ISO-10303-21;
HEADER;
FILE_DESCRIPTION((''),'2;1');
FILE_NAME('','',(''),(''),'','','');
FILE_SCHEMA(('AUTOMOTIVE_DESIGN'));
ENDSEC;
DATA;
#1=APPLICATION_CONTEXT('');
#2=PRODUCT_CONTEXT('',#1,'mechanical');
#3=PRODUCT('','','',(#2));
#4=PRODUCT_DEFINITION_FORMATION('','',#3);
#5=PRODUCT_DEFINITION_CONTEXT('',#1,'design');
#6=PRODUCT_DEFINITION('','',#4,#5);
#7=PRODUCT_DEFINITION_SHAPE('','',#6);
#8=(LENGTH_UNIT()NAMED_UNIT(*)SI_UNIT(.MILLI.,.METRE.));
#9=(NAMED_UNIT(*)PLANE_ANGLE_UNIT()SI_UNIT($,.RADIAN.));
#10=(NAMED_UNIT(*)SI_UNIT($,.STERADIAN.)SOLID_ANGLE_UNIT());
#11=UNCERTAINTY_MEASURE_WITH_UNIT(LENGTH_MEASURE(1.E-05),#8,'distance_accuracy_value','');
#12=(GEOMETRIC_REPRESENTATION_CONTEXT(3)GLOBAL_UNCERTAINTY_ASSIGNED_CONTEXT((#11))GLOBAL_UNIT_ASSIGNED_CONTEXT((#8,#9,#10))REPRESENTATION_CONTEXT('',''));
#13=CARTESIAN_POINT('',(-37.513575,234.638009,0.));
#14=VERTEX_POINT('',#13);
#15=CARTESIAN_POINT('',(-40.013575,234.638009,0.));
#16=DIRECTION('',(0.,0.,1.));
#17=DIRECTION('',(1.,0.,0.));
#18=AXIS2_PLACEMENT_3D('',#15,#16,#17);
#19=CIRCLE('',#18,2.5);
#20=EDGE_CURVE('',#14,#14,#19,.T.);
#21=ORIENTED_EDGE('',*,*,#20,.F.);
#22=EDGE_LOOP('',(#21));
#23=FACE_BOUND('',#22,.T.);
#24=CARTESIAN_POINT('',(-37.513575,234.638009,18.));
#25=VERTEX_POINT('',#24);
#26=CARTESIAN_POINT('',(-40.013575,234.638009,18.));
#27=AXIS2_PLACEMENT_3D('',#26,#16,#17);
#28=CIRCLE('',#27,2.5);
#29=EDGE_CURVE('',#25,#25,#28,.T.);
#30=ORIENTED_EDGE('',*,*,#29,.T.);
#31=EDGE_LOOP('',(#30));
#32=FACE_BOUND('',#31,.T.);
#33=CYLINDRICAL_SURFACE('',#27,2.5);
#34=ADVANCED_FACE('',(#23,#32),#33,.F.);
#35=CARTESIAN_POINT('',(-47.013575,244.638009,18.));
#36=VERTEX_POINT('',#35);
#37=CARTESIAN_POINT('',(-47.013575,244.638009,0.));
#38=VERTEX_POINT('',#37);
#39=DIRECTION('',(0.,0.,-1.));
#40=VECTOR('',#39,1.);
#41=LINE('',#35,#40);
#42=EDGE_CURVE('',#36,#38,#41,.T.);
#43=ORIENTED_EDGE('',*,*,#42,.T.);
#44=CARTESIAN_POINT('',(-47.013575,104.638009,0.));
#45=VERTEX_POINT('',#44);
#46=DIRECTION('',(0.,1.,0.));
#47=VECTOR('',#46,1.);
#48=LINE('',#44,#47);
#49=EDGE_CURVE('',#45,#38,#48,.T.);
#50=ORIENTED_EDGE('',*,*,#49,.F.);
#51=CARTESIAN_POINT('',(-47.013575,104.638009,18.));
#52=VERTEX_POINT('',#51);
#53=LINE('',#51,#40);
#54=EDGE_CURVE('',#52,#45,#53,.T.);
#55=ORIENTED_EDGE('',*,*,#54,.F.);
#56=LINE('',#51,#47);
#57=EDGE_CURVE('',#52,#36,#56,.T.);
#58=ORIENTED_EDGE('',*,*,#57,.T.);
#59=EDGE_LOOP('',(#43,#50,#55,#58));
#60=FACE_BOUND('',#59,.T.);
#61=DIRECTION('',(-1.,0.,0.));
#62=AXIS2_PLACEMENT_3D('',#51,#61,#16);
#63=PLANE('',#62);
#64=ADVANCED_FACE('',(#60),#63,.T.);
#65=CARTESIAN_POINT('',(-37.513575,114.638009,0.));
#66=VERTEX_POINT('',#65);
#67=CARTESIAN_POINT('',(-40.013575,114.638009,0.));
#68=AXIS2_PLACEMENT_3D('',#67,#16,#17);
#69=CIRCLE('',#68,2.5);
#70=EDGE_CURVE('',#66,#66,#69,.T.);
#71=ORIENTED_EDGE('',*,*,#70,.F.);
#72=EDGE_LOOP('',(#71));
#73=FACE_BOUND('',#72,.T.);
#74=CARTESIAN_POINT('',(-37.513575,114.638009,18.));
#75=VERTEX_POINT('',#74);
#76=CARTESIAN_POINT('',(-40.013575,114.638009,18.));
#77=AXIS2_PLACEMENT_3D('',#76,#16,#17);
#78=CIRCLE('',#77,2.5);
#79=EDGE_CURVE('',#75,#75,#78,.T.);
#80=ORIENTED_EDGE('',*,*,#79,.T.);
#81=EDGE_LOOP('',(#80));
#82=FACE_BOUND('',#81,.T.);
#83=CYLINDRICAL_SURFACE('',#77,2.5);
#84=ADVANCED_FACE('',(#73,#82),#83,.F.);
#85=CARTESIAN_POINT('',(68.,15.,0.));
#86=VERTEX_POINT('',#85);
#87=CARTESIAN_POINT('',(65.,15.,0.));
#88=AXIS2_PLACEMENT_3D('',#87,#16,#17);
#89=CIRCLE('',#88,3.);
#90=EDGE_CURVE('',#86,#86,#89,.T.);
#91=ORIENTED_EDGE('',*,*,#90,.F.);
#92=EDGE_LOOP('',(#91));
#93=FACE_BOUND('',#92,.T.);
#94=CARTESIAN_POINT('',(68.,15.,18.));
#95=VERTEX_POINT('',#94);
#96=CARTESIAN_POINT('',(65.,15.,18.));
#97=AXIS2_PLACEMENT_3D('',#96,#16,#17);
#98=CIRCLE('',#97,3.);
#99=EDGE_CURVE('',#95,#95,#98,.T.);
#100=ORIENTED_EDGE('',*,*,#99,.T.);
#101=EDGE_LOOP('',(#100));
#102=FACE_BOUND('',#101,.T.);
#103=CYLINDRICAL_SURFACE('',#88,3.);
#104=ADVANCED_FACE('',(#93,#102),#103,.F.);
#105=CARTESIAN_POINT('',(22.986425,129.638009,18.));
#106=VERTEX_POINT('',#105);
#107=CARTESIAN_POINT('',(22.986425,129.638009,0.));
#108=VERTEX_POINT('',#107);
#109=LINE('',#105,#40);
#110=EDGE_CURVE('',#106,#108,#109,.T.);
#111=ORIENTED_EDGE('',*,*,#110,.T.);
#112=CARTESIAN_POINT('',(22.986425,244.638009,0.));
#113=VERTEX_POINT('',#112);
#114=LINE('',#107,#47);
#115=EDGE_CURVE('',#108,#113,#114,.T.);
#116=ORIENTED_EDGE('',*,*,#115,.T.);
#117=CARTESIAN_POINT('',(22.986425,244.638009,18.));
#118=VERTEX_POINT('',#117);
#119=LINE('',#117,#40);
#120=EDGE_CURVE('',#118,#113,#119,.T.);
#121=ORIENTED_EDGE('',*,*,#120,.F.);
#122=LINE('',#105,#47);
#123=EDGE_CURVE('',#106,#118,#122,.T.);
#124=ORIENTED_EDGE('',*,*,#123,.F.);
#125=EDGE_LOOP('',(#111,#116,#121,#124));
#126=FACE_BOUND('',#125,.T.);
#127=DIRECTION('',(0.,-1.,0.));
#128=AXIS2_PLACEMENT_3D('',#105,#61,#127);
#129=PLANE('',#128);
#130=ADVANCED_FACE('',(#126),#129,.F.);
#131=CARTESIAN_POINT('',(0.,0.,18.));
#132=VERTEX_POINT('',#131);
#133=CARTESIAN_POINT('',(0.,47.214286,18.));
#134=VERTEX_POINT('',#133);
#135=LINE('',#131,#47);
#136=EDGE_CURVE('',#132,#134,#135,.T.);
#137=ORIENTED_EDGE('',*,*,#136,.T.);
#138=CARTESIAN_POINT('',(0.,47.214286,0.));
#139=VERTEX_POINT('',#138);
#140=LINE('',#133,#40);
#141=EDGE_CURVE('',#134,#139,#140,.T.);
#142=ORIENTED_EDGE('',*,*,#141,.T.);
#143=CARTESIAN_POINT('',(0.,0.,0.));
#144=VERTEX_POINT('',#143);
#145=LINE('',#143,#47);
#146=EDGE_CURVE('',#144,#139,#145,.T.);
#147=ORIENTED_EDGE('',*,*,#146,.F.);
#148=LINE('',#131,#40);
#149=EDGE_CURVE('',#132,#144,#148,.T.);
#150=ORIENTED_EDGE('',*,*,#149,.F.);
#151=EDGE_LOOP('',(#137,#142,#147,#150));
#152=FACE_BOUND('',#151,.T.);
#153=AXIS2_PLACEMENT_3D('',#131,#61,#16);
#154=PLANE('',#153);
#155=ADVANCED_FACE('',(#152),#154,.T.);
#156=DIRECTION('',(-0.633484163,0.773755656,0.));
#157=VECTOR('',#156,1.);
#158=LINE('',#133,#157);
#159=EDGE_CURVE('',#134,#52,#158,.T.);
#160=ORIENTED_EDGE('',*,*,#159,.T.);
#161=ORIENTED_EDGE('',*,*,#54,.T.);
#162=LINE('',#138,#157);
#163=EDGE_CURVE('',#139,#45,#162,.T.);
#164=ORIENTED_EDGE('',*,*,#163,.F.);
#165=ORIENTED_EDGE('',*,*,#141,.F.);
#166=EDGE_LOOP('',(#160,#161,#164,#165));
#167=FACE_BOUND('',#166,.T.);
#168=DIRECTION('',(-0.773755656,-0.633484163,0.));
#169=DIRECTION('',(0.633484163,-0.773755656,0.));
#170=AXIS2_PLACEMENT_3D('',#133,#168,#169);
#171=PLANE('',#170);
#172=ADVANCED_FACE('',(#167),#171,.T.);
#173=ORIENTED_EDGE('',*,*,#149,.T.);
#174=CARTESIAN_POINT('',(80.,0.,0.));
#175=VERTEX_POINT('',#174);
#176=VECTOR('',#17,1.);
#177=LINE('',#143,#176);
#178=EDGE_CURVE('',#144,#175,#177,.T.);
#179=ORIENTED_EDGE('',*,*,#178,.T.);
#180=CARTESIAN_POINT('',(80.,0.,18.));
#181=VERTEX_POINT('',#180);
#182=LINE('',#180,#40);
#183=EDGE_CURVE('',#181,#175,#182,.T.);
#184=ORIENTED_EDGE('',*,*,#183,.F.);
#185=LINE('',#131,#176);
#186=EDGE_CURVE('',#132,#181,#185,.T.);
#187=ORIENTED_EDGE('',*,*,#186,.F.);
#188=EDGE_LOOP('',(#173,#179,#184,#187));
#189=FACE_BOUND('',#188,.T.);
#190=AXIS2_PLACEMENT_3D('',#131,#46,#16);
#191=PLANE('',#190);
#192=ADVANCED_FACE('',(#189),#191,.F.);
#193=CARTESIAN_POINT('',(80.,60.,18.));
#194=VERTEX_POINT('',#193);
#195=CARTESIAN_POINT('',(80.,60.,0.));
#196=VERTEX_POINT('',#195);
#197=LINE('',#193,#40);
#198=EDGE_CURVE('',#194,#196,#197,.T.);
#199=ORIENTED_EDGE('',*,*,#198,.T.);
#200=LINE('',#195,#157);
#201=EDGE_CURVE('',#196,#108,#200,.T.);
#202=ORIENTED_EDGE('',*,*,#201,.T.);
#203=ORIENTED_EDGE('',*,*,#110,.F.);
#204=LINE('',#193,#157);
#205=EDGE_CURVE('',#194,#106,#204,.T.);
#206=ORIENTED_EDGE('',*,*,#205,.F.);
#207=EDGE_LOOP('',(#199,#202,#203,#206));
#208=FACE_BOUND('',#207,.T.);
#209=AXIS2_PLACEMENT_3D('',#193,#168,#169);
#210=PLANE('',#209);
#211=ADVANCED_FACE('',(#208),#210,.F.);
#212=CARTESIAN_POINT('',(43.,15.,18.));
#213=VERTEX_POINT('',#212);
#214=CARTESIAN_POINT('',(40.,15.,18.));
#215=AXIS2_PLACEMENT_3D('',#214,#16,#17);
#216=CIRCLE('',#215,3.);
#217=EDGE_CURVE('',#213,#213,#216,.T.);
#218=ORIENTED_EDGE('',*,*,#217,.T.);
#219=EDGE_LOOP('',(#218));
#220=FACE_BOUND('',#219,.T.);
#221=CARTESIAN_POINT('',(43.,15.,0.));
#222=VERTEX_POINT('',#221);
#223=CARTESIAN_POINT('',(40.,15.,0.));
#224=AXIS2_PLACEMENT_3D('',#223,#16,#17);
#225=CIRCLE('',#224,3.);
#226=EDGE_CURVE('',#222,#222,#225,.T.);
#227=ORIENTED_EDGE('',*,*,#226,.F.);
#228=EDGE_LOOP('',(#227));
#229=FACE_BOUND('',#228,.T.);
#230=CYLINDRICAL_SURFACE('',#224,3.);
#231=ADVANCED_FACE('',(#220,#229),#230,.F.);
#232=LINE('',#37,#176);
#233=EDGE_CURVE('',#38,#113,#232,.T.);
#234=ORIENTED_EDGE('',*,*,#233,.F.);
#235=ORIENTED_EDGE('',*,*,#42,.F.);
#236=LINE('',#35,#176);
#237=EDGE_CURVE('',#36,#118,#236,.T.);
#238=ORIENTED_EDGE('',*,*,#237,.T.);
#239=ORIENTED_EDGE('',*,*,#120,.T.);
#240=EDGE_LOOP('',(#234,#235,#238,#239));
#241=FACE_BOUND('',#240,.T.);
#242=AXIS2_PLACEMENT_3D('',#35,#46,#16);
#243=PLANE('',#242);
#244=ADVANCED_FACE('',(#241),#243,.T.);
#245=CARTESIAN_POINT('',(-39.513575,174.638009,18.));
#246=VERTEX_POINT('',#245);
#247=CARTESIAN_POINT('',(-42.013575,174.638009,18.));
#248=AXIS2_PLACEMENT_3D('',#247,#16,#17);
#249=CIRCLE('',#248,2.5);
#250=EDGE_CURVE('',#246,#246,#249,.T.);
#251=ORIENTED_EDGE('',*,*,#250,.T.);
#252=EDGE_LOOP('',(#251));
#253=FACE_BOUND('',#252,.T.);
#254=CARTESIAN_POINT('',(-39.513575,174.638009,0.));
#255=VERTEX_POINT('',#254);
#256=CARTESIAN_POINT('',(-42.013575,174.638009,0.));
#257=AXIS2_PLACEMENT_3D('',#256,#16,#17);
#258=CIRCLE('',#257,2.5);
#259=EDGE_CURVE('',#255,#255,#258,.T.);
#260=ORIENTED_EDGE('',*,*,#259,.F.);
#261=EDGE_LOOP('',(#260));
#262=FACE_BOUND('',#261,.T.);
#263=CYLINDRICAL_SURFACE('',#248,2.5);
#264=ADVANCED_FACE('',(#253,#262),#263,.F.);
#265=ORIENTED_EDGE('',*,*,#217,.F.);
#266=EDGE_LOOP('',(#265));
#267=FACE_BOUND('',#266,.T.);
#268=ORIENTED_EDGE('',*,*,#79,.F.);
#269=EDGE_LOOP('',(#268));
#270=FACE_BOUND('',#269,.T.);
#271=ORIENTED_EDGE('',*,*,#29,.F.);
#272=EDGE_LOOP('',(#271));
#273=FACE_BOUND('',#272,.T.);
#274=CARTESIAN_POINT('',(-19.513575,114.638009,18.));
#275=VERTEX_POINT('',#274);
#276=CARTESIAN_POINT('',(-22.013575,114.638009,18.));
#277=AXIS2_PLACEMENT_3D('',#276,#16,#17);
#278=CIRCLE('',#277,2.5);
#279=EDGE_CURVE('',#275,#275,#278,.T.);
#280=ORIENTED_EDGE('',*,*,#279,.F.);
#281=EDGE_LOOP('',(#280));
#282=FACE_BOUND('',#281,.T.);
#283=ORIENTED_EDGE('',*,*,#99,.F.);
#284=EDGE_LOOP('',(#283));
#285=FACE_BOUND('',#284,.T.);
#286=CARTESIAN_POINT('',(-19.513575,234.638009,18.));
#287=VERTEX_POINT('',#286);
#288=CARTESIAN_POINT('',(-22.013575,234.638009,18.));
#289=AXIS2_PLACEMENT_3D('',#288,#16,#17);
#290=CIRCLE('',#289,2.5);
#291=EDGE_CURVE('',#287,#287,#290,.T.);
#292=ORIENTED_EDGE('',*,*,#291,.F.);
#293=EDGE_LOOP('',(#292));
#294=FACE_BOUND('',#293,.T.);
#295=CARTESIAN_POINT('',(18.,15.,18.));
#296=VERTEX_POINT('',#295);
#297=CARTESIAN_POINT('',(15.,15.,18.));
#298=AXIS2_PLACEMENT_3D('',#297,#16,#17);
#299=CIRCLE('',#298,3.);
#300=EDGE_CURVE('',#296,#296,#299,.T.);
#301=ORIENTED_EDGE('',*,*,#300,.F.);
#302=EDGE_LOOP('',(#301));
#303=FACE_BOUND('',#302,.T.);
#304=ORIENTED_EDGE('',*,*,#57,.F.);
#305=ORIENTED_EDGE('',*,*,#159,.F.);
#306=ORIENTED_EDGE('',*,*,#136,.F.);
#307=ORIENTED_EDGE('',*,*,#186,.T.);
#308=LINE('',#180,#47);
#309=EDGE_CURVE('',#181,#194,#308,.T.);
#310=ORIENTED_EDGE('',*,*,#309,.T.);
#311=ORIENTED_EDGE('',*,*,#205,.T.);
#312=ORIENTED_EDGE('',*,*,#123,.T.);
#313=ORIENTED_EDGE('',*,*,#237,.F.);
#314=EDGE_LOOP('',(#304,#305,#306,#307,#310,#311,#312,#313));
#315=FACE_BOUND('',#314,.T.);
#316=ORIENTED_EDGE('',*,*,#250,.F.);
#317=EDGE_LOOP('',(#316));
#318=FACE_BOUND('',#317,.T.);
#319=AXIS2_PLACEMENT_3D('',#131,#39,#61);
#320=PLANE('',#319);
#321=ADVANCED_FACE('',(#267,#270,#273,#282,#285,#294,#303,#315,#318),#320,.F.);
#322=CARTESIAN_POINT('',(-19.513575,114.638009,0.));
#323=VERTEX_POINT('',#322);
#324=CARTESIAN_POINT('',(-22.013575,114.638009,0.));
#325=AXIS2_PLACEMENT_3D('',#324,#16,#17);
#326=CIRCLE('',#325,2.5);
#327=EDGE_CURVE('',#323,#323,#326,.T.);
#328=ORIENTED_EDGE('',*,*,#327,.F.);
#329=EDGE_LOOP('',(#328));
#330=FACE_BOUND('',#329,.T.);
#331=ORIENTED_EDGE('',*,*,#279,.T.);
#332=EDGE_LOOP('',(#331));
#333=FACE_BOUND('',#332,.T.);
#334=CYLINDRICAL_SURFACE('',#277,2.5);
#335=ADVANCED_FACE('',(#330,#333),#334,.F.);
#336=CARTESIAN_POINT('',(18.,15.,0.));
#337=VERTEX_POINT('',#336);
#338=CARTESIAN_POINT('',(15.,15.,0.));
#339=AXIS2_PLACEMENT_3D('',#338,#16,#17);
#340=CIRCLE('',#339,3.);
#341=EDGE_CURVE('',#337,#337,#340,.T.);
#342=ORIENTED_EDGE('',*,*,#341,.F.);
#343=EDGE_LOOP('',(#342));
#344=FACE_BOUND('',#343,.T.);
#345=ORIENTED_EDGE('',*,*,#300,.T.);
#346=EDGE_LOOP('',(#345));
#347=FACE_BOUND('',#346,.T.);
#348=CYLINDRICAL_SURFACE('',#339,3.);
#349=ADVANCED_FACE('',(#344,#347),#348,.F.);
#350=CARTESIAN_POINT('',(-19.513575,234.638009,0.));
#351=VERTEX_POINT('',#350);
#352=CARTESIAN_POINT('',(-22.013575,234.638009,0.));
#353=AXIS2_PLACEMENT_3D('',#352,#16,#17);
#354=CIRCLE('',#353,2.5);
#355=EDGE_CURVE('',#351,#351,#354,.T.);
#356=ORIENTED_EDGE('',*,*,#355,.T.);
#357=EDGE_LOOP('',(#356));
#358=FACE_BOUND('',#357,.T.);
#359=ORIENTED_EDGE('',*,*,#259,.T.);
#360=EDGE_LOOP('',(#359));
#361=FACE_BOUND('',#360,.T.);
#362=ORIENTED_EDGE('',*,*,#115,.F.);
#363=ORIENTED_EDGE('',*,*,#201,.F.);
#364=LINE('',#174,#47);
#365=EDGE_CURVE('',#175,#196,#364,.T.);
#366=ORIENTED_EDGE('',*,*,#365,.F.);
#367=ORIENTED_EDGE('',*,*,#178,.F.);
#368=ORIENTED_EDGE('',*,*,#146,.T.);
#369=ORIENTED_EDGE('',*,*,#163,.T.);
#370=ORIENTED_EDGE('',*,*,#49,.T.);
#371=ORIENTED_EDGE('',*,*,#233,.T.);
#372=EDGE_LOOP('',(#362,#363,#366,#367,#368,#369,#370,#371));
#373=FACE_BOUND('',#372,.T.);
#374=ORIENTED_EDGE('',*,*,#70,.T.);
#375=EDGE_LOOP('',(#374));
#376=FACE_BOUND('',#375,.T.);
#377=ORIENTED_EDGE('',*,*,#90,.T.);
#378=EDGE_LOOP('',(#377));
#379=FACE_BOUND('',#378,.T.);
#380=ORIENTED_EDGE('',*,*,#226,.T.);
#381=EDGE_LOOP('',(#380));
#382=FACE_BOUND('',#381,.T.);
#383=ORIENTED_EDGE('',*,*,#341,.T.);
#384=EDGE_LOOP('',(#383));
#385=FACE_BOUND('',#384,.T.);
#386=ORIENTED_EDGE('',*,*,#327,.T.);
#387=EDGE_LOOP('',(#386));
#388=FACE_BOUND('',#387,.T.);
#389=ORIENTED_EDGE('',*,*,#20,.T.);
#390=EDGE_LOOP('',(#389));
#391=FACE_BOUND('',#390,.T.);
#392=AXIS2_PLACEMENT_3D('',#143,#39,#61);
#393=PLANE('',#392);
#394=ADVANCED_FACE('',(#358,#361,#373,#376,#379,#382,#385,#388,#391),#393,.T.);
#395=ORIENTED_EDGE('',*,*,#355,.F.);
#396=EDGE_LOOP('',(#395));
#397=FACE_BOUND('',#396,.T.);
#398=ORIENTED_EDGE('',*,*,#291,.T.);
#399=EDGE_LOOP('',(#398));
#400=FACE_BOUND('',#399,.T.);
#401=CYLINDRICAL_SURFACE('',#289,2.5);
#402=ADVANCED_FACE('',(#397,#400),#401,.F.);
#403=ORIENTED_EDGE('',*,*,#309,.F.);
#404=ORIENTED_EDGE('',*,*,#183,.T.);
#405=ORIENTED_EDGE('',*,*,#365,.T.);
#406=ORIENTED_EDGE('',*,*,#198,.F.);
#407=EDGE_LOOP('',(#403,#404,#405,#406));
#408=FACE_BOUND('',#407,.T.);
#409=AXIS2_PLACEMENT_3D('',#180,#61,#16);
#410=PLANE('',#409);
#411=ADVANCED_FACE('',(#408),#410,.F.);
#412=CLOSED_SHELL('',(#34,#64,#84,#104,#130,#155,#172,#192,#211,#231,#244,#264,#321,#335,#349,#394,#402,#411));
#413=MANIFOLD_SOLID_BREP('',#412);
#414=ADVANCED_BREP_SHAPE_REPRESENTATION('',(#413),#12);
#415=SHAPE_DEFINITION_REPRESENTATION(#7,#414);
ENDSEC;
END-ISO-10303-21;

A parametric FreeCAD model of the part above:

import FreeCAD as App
import Part
import Sketcher
from FreeCAD import Vector
Q = App.Units.Quantity

doc = App.newDocument("Part")
body = doc.addObject("PartDesign::Body", "Body")

# Sketch on XY plane
sketch1 = body.newObject("Sketcher::SketchObject", "Sketch")
sketch1.AttachmentSupport = (doc.getObject("XY_Plane"), [""])
sketch1.MapMode = "FlatFace"
sketch1.addGeometry([
    Part.LineSegment(Vector(0, 0, 0), Vector(80, 0, 0)),  # 0
    Part.LineSegment(Vector(80, 0, 0), Vector(80, 60, 0)),  # 1
    Part.LineSegment(Vector(80, 60, 0), Vector(23, 130, 0)),  # 2
    Part.LineSegment(Vector(23, 130, 0), Vector(23, 245, 0)),  # 3
    Part.LineSegment(Vector(23, 245, 0), Vector(-47, 245, 0)),  # 4
    Part.LineSegment(Vector(-47, 245, 0), Vector(-47, 105, 0)),  # 5
    Part.LineSegment(Vector(-47, 105, 0), Vector(0, 47, 0)),  # 6
    Part.LineSegment(Vector(0, 47, 0), Vector(0, 0, 0)),  # 7
], False)
sketch1.addConstraint([
    Sketcher.Constraint("Coincident", 0, 2, 1, 1),
    Sketcher.Constraint("Coincident", 1, 2, 2, 1),
    Sketcher.Constraint("Coincident", 2, 2, 3, 1),
    Sketcher.Constraint("Coincident", 3, 2, 4, 1),
    Sketcher.Constraint("Coincident", 4, 2, 5, 1),
    Sketcher.Constraint("Coincident", 5, 2, 6, 1),
    Sketcher.Constraint("Coincident", 6, 2, 7, 1),
    Sketcher.Constraint("Coincident", 7, 2, 0, 1),
    Sketcher.Constraint("Horizontal", 0),
    Sketcher.Constraint("Vertical", 1),
    Sketcher.Constraint("Vertical", 3),
    Sketcher.Constraint("Horizontal", 4),
    Sketcher.Constraint("Vertical", 5),
    Sketcher.Constraint("Vertical", 7),
    Sketcher.Constraint("Coincident", 7, 2, -1, 1),
    Sketcher.Constraint("Parallel", 2, 6),
    Sketcher.Constraint("DistanceX", 0, 1, 0, 2, Q("80 mm")),
    Sketcher.Constraint("DistanceX", 4, 2, 4, 1, Q("70 mm")),
    Sketcher.Constraint("DistanceY", 1, 1, 1, 2, Q("60 mm")),
    Sketcher.Constraint("DistanceY", 3, 1, 3, 2, Q("115 mm")),
    Sketcher.Constraint("DistanceY", 5, 2, 5, 1, Q("140 mm")),
    Sketcher.Constraint("Distance", 2, Q("90 mm")),
    Sketcher.Constraint("DistanceY", 7, 2, 7, 1, Q("47.214286 mm")),
])
pad1 = body.newObject("PartDesign::Pad", "Pad")
pad1.Profile = sketch1
pad1.Length = 18

# Sketch on XY plane
sketch2 = body.newObject("Sketcher::SketchObject", "Sketch001")
sketch2.AttachmentSupport = (doc.getObject("XY_Plane"), [""])
sketch2.MapMode = "FlatFace"
sketch2.AttachmentOffset = App.Placement(Vector(0, 0, 18), App.Rotation())
sketch2.addGeometry([
    Part.Circle(Vector(-40, 114.6, 0), Vector(0, 0, 1), 2.5),
    Part.Circle(Vector(-22, 114.6, 0), Vector(0, 0, 1), 2.5),
    Part.Circle(Vector(-40, 234.6, 0), Vector(0, 0, 1), 2.5),
    Part.Circle(Vector(-22, 234.6, 0), Vector(0, 0, 1), 2.5),
], False)
sketch2.addConstraint([
    Sketcher.Constraint("Equal", 0, 1),
    Sketcher.Constraint("Equal", 1, 2),
    Sketcher.Constraint("Equal", 2, 3),
    Sketcher.Constraint("Horizontal", 0, 3, 1, 3),
    Sketcher.Constraint("Horizontal", 2, 3, 3, 3),
    Sketcher.Constraint("Vertical", 0, 3, 2, 3),
    Sketcher.Constraint("Vertical", 1, 3, 3, 3),
    Sketcher.Constraint("Diameter", 0, Q("5 mm")),
    Sketcher.Constraint("DistanceX", 0, 3, 1, 3, Q("18 mm")),
    Sketcher.Constraint("DistanceY", 0, 3, 2, 3, Q("120 mm")),
    Sketcher.Constraint("DistanceY", -1, 1, 0, 3, Q("114.638009 mm")),
    Sketcher.Constraint("DistanceX", 0, 3, -1, 1, Q("40.013575 mm")),
])
doc.recompute()
hole = body.newObject("PartDesign::Hole", "Hole")
hole.Profile = sketch2
hole.ThreadType = "None"
hole.Diameter = 5
hole.DepthType = "ThroughAll"

# Sketch on XY plane
sketch3 = body.newObject("Sketcher::SketchObject", "Sketch002")
sketch3.AttachmentSupport = (doc.getObject("XY_Plane"), [""])
sketch3.MapMode = "FlatFace"
sketch3.AttachmentOffset = App.Placement(Vector(0, 0, 18), App.Rotation())
sketch3.addGeometry([
    Part.Circle(Vector(15, 15, 0), Vector(0, 0, 1), 3),
    Part.Circle(Vector(40, 15, 0), Vector(0, 0, 1), 3),
    Part.Circle(Vector(65, 15, 0), Vector(0, 0, 1), 3),
], False)
sketch3.addConstraint([
    Sketcher.Constraint("Equal", 0, 1),
    Sketcher.Constraint("Equal", 1, 2),
    Sketcher.Constraint("Horizontal", 0, 3, 1, 3),
    Sketcher.Constraint("Horizontal", 1, 3, 2, 3),
    Sketcher.Constraint("Diameter", 0, Q("6 mm")),
    Sketcher.Constraint("DistanceX", -1, 1, 0, 3, Q("15 mm")),
    Sketcher.Constraint("DistanceY", -1, 1, 0, 3, Q("15 mm")),
    Sketcher.Constraint("DistanceX", -1, 1, 1, 3, Q("40 mm")),
    Sketcher.Constraint("DistanceX", -1, 1, 2, 3, Q("65 mm")),
])
pocket1 = body.newObject("PartDesign::Pocket", "Pocket")
pocket1.Profile = sketch3
pocket1.Type = "ThroughAll"

# Sketch on XY plane
sketch4 = body.newObject("Sketcher::SketchObject", "Sketch003")
sketch4.AttachmentSupport = (doc.getObject("XY_Plane"), [""])
sketch4.MapMode = "FlatFace"
sketch4.AttachmentOffset = App.Placement(Vector(0, 0, 18), App.Rotation())
sketch4.addGeometry(Part.Circle(Vector(-42, 174.6, 0), Vector(0, 0, 1), 2.5), False)
sketch4.addConstraint([
    Sketcher.Constraint("Diameter", 0, Q("5 mm")),
    Sketcher.Constraint("DistanceY", -1, 1, 0, 3, Q("174.638009 mm")),
    Sketcher.Constraint("DistanceX", 0, 3, -1, 1, Q("42.013575 mm")),
])
doc.recompute()
hole2 = body.newObject("PartDesign::Hole", "Hole001")
hole2.Profile = sketch4
hole2.ThreadType = "None"
hole2.Diameter = 5
hole2.DepthType = "ThroughAll"

doc.recompute()
